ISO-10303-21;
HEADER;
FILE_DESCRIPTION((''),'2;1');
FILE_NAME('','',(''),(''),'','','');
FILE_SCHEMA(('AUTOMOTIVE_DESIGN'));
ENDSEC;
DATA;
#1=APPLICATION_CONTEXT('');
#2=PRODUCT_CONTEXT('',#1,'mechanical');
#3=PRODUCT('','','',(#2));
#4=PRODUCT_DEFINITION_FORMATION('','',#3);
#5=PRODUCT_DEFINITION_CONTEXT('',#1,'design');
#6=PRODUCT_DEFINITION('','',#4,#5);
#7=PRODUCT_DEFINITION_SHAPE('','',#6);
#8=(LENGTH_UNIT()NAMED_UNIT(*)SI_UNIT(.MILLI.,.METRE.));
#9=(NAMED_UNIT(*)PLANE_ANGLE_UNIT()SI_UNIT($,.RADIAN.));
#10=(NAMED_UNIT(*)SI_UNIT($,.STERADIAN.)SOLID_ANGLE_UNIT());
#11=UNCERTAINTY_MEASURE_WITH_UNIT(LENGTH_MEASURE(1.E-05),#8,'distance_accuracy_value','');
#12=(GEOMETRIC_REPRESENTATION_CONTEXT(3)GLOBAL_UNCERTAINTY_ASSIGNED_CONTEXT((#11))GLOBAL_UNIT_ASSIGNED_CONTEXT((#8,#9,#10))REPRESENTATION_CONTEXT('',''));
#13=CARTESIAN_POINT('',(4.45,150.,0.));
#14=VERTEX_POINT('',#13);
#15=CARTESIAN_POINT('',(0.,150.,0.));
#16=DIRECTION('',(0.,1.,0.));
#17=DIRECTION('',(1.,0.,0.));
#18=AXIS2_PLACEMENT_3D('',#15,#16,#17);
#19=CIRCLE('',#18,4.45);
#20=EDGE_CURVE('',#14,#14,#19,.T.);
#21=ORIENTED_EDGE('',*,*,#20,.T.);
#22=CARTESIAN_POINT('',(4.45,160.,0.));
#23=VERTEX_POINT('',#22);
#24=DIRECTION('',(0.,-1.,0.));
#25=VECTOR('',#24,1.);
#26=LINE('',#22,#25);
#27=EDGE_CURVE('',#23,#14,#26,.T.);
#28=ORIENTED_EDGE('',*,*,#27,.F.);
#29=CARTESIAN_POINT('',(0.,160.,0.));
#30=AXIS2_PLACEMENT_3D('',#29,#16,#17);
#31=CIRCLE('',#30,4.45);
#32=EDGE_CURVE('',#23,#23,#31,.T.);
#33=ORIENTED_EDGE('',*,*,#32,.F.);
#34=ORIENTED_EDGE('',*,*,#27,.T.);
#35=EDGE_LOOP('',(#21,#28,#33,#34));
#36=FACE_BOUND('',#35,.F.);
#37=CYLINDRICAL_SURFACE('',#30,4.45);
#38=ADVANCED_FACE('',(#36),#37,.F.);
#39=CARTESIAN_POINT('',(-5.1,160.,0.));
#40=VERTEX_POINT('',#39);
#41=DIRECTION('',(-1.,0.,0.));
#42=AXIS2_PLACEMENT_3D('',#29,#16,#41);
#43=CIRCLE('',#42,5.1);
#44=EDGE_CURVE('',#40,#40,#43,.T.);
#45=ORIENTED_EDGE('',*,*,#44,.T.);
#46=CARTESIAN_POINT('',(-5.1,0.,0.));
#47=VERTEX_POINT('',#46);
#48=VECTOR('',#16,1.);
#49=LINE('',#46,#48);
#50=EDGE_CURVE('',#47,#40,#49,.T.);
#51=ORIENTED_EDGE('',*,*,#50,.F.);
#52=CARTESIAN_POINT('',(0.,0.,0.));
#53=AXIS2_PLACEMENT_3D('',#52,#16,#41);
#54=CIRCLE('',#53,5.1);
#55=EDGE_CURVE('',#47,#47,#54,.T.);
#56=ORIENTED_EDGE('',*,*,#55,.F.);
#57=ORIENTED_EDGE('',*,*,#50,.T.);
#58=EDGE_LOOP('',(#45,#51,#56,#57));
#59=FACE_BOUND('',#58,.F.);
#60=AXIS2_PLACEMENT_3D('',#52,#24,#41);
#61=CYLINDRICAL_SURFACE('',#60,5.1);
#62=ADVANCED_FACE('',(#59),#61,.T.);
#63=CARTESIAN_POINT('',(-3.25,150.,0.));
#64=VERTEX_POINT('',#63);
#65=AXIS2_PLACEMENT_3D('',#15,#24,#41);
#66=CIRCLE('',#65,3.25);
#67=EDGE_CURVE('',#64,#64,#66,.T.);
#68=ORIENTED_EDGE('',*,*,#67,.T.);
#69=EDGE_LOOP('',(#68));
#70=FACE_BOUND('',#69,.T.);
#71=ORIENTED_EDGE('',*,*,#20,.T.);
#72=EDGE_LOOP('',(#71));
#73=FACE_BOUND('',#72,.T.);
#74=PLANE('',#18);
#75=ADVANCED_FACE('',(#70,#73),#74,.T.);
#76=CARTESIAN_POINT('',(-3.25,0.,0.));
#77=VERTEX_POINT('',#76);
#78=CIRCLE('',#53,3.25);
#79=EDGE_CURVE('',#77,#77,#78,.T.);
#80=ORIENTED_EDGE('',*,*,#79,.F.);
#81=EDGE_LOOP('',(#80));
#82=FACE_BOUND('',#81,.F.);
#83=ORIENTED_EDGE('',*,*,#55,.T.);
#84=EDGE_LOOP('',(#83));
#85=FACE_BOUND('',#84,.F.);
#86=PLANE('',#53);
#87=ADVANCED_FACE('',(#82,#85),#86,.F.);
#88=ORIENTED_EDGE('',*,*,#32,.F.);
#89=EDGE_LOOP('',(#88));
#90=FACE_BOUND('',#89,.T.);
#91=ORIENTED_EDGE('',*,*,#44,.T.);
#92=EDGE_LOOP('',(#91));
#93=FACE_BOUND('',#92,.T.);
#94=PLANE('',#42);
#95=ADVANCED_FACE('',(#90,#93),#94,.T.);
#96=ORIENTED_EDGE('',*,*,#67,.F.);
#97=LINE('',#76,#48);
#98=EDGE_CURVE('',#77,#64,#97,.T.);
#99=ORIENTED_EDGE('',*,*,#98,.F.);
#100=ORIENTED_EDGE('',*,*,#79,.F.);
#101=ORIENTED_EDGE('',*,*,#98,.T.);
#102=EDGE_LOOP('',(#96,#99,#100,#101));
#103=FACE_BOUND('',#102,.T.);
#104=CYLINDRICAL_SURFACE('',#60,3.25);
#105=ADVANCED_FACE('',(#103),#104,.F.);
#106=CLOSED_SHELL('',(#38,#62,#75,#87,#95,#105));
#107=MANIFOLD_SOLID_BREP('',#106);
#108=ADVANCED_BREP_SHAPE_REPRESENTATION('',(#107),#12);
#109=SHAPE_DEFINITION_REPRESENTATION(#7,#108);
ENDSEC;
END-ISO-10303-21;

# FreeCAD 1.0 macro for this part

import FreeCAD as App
import Part
import Sketcher

V = App.Vector
Q = App.Units.Quantity

doc = App.newDocument("Part")
body = doc.addObject("PartDesign::Body", "Body")

# Sketch on XZ plane
sketch1 = body.newObject("Sketcher::SketchObject", "Sketch")
sketch1.AttachmentSupport = (doc.getObject("XZ_Plane"), [""])
sketch1.MapMode = "FlatFace"
sketch1.addGeometry(Part.Circle(V(0, 0, 0), V(0, 0, 1), 5.1), False)
sketch1.addGeometry(Part.Circle(V(0, 0, 0), V(0, 0, 1), 3.25), False)
sketch1.addConstraint(Sketcher.Constraint("Coincident", 0, 3, -1, 1))
sketch1.addConstraint(Sketcher.Constraint("Coincident", 1, 3, -1, 1))
sketch1.addConstraint(Sketcher.Constraint("Diameter", 0, Q("10.2 mm")))
sketch1.addConstraint(Sketcher.Constraint("Diameter", 1, Q("6.5 mm")))
pad1 = body.newObject("PartDesign::Pad", "Pad")
pad1.Profile = sketch1
pad1.Length = 160
pad1.Reversed = True

# Sketch on XZ plane
sketch2 = body.newObject("Sketcher::SketchObject", "Sketch001")
sketch2.AttachmentSupport = (doc.getObject("XZ_Plane"), [""])
sketch2.MapMode = "FlatFace"
sketch2.AttachmentOffset = App.Placement(V(0, 0, -160), App.Rotation())
sketch2.addGeometry(Part.Circle(V(0, 0, 0), V(0, 0, 1), 4.45), False)
sketch2.addConstraint(Sketcher.Constraint("Coincident", 0, 3, -1, 1))
sketch2.addConstraint(Sketcher.Constraint("Diameter", 0, Q("8.9 mm")))
pocket1 = body.newObject("PartDesign::Pocket", "Pocket")
pocket1.Profile = sketch2
pocket1.Length = 10
pocket1.Reversed = True

doc.recompute()
